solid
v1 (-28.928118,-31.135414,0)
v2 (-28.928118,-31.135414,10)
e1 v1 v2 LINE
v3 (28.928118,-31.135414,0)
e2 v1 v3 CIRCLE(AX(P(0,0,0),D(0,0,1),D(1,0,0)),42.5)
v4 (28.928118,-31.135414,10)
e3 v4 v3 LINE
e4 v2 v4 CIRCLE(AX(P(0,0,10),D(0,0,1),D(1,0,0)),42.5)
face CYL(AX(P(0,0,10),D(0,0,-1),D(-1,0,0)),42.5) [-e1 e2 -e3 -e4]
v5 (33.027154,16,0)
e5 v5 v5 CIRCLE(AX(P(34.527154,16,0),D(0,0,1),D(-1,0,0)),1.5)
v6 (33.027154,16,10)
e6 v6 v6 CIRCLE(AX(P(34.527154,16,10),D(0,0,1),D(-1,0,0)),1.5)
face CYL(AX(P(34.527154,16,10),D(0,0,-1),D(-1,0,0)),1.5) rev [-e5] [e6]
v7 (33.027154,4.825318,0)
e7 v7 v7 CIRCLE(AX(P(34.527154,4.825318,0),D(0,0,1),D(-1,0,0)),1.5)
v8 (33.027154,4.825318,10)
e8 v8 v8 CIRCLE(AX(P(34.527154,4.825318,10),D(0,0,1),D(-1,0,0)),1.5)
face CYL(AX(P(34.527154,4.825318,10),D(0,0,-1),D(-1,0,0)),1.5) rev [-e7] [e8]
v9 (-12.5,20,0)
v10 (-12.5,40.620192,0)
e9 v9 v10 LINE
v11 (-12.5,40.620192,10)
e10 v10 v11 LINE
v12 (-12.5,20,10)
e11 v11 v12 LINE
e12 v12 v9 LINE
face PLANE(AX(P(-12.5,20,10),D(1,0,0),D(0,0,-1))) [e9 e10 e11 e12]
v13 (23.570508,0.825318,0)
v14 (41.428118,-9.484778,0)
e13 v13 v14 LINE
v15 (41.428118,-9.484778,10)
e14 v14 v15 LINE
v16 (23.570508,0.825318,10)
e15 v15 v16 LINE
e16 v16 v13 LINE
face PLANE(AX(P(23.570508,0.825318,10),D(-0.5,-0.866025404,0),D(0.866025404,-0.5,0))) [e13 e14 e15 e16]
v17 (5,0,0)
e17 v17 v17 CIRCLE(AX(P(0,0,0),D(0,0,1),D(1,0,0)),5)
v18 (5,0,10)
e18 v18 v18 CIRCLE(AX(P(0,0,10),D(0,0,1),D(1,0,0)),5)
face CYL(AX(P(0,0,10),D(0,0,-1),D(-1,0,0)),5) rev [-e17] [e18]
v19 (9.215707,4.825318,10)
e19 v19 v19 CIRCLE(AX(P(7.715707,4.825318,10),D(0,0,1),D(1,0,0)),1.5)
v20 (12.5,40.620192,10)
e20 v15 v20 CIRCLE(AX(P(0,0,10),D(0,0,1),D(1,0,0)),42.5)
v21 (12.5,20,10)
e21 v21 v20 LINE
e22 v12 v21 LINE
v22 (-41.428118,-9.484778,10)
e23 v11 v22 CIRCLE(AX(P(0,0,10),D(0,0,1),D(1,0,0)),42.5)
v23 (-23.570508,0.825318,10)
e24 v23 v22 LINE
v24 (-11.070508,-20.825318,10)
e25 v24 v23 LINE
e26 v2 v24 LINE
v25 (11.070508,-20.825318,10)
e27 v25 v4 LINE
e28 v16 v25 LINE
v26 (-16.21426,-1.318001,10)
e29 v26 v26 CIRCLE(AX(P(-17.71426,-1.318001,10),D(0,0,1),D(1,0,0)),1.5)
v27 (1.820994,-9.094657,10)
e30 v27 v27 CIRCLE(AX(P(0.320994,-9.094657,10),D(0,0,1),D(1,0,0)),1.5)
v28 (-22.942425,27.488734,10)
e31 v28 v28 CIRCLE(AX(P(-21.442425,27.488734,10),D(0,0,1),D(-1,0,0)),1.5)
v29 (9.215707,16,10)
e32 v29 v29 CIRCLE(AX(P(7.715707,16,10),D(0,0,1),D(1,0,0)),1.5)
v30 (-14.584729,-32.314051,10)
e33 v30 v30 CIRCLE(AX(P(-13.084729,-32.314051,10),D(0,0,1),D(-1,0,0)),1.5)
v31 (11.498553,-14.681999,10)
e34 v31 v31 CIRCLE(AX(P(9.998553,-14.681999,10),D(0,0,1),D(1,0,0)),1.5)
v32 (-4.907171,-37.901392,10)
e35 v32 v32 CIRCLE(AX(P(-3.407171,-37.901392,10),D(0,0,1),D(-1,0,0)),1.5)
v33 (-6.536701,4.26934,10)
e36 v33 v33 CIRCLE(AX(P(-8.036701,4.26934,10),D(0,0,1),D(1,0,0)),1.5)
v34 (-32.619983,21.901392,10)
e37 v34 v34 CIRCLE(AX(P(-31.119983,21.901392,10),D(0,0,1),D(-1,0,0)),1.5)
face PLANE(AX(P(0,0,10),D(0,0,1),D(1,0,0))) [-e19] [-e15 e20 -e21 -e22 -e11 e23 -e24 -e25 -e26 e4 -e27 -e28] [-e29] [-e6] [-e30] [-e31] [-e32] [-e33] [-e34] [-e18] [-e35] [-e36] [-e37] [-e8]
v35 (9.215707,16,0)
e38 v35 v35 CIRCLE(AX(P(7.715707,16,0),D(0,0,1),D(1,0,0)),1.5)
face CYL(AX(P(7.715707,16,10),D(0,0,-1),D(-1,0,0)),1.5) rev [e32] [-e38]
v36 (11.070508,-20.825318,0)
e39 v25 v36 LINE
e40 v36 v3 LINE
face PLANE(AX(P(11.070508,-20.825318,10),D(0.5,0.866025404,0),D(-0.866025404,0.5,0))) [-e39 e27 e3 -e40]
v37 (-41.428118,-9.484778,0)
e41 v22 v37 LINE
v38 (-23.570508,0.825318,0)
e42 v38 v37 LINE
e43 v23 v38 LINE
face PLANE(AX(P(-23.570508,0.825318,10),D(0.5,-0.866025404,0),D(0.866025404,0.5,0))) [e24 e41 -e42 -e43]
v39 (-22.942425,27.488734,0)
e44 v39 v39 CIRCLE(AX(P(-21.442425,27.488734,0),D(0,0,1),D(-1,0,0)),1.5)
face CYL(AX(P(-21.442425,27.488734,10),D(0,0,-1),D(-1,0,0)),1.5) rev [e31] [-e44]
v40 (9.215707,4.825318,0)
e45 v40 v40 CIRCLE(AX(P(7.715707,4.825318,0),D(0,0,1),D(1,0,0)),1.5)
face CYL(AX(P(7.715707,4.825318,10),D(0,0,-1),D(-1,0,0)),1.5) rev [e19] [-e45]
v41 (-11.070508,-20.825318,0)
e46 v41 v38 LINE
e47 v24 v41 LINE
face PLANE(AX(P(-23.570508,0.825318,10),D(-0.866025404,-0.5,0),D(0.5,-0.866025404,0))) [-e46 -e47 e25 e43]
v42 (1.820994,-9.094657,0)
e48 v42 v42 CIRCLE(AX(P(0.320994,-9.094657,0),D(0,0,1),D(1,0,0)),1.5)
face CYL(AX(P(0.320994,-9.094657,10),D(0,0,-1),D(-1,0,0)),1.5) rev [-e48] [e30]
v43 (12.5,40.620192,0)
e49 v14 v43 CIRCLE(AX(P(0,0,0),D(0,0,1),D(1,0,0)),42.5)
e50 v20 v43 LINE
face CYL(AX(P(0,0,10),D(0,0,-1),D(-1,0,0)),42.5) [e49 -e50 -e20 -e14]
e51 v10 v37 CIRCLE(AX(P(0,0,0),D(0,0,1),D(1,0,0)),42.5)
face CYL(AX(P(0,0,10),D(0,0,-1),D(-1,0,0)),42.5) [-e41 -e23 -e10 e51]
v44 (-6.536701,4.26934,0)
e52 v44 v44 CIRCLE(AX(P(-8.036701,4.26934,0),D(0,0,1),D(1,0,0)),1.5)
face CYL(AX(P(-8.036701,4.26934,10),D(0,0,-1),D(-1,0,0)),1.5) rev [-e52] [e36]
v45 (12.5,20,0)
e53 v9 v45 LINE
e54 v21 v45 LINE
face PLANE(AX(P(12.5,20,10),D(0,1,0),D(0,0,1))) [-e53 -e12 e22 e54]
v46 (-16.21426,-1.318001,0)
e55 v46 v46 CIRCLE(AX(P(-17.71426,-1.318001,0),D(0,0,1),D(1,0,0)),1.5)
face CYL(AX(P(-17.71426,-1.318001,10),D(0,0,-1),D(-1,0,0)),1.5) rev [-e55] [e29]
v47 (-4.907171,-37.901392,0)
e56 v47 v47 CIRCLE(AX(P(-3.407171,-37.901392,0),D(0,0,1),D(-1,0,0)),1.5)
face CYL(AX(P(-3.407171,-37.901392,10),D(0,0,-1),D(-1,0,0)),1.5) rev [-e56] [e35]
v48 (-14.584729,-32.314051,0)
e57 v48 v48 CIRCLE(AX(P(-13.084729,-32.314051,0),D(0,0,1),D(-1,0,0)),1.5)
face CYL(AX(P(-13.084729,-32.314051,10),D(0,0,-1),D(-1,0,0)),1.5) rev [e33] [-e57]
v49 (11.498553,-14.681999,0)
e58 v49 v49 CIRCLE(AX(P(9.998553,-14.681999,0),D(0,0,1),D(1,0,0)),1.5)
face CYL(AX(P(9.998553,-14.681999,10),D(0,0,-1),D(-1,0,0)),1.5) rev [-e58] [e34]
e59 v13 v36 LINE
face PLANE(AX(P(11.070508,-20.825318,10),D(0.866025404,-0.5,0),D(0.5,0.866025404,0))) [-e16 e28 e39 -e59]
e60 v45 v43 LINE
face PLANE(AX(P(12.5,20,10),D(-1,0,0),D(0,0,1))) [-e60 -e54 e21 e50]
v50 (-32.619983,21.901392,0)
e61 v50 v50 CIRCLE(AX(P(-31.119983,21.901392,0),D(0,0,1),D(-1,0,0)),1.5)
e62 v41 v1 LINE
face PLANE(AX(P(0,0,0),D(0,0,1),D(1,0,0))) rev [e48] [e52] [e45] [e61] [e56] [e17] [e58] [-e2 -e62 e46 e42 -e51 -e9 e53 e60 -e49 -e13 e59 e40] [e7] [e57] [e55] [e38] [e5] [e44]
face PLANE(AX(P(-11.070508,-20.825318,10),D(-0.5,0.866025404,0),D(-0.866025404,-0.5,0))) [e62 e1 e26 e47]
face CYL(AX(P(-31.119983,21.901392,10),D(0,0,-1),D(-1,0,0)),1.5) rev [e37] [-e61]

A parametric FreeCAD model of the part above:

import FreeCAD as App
import Part
import Sketcher
Q = App.Units.Quantity


def add_polygon(sketch, points):
    """Adds a closed chain of lines whose ends are joined by coincident constraints."""
    first, n = sketch.GeometryCount, len(points)
    for a, b in zip(points, points[1:] + points[:1]):
        sketch.addGeometry(Part.LineSegment(App.Vector(*a, 0), App.Vector(*b, 0)), False)
    for i in range(n):
        sketch.addConstraint(Sketcher.Constraint("Coincident", first + i, 2, first + (i + 1) % n, 1))

doc = App.newDocument("Part")
params = doc.addObject("Spreadsheet::Sheet", "Params")
for row, (alias, value) in enumerate([
    ("sketch1_diameter", "85 mm"),
    ("pad1_length", "10 mm"),
    ("sketch2_diameter", "10 mm"),
    ("sketch2_width", "25 mm"),
    ("sketch2_height", "40 mm"),
    ("sketch2_length", "25 mm"),
    ("sketch2_length2", "40 mm"),
    ("pocket1_length", "10 mm"),
    ("sketch3_diameter", "3 mm"),
    ("pocket2_length", "10 mm"),
], start=1):
    params.set(f"A{row}", alias)
    params.set(f"B{row}", "=" + value)
    params.setAlias(f"B{row}", alias)

body = doc.addObject("PartDesign::Body", "Body")

sketch1 = doc.addObject("Sketcher::SketchObject", "Sketch")
body.addObject(sketch1)
sketch1.AttachmentSupport = (doc.XY_Plane, [""])
sketch1.MapMode = "FlatFace"
sketch1.addGeometry(Part.Circle(App.Vector(0, 0, 0), App.Vector(0, 0, 1), 42), False)
sketch1.addConstraint(Sketcher.Constraint("Coincident", 0, 3, -1, 1))
sketch1.addConstraint(Sketcher.Constraint("Diameter", 0, Q("85 mm")))
sketch1.setExpression("Constraints[1]", "Params.sketch1_diameter")
pad1 = doc.addObject("PartDesign::Pad", "Pad")
body.addObject(pad1)
pad1.Profile = sketch1
pad1.setExpression("Length", "Params.pad1_length")

sketch2 = doc.addObject("Sketcher::SketchObject", "Sketch001")
body.addObject(sketch2)
sketch2.AttachmentSupport = (doc.XY_Plane, [""])
sketch2.MapMode = "FlatFace"
sketch2.addGeometry(Part.Circle(App.Vector(0, 0, 0), App.Vector(0, 0, 1), 5), False)
add_polygon(sketch2, [(-12, 60), (-12, 20), (12, 20), (12, 60)])
add_polygon(sketch2, [(24, 1), (11, -21), (46, -41), (58, -19)])
add_polygon(sketch2, [(-11, -21), (-24, 1), (-58, -19), (-46, -41)])
sketch2.addConstraint(Sketcher.Constraint("Vertical", 1))
sketch2.addConstraint(Sketcher.Constraint("Horizontal", 2))
sketch2.addConstraint(Sketcher.Constraint("Vertical", 3))
sketch2.addConstraint(Sketcher.Constraint("Horizontal", 4))
sketch2.addConstraint(Sketcher.Constraint("Coincident", 0, 3, -1, 1))
sketch2.addConstraint(Sketcher.Constraint("Symmetric", 8, 2, 9, 2, -2))
sketch2.addConstraint(Sketcher.Constraint("Symmetric", 7, 2, 10, 2, -2))
sketch2.addConstraint(Sketcher.Constraint("Symmetric", 6, 2, 11, 2, -2))
sketch2.addConstraint(Sketcher.Constraint("Symmetric", 5, 2, 12, 2, -2))
sketch2.addConstraint(Sketcher.Constraint("Perpendicular", 5, 6))
sketch2.addConstraint(Sketcher.Constraint("Perpendicular", 6, 7))
sketch2.addConstraint(Sketcher.Constraint("Perpendicular", 7, 8))
sketch2.addConstraint(Sketcher.Constraint("Diameter", 0, Q("10 mm")))
sketch2.addConstraint(Sketcher.Constraint("DistanceX", 2, 1, 2, 2, Q("25 mm")))
sketch2.addConstraint(Sketcher.Constraint("DistanceY", 1, 2, 1, 1, Q("40 mm")))
sketch2.addConstraint(Sketcher.Constraint("Angle", 5, Q("-120 deg")))
sketch2.addConstraint(Sketcher.Constraint("Distance", 5, Q("25 mm")))
sketch2.addConstraint(Sketcher.Constraint("Distance", 6, Q("40 mm")))
sketch2.addConstraint(Sketcher.Constraint("DistanceY", -1, 1, 1, 2, Q("20 mm")))
sketch2.addConstraint(Sketcher.Constraint("DistanceX", 1, 2, -1, 1, Q("12.5 mm")))
sketch2.addConstraint(Sketcher.Constraint("DistanceX", -1, 1, 5, 2, Q("11.070508 mm")))
sketch2.addConstraint(Sketcher.Constraint("DistanceY", 5, 2, -1, 1, Q("20.825318 mm")))
sketch2.setExpression("Constraints[24]", "Params.sketch2_diameter")
sketch2.setExpression("Constraints[25]", "Params.sketch2_width")
sketch2.setExpression("Constraints[26]", "Params.sketch2_height")
sketch2.setExpression("Constraints[28]", "Params.sketch2_length")
sketch2.setExpression("Constraints[29]", "Params.sketch2_length2")
pocket1 = doc.addObject("PartDesign::Pocket", "Pocket")
body.addObject(pocket1)
pocket1.Profile = sketch2
pocket1.setExpression("Length", "Params.pocket1_length")
pocket1.Reversed = True

sketch3 = doc.addObject("Sketcher::SketchObject", "Sketch002")
body.addObject(sketch3)
sketch3.AttachmentSupport = (doc.XY_Plane, [""])
sketch3.MapMode = "FlatFace"
sketch3.addGeometry(Part.Circle(App.Vector(7.7, 16, 0), App.Vector(0, 0, 1), 1.5), False)
sketch3.addGeometry(Part.Circle(App.Vector(7.7, 4.8, 0), App.Vector(0, 0, 1), 1.5), False)
sketch3.addGeometry(Part.Circle(App.Vector(34.5, 4.8, 0), App.Vector(0, 0, 1), 1.5), False)
sketch3.addGeometry(Part.Circle(App.Vector(34.5, 16, 0), App.Vector(0, 0, 1), 1.5), False)
sketch3.addGeometry(Part.Circle(App.Vector(10, -14.7, 0), App.Vector(0, 0, 1), 1.5), False)
sketch3.addGeometry(Part.Circle(App.Vector(0.3, -9.1, 0), App.Vector(0, 0, 1), 1.5), False)
sketch3.addGeometry(Part.Circle(App.Vector(-13.1, -32.3, 0), App.Vector(0, 0, 1), 1.5), False)
sketch3.addGeometry(Part.Circle(App.Vector(-3.4, -37.9, 0), App.Vector(0, 0, 1), 1.5), False)
sketch3.addGeometry(Part.Circle(App.Vector(-17.7, -1.3, 0), App.Vector(0, 0, 1), 1.5), False)
sketch3.addGeometry(Part.Circle(App.Vector(-8, 4.3, 0), App.Vector(0, 0, 1), 1.5), False)
sketch3.addGeometry(Part.Circle(App.Vector(-21.4, 27.5, 0), App.Vector(0, 0, 1), 1.5), False)
sketch3.addGeometry(Part.Circle(App.Vector(-31.1, 21.9, 0), App.Vector(0, 0, 1), 1.5), False)
sketch3.addConstraint(Sketcher.Constraint("Equal", 0, 1))
sketch3.addConstraint(Sketcher.Constraint("Equal", 1, 2))
sketch3.addConstraint(Sketcher.Constraint("Equal", 2, 3))
sketch3.addConstraint(Sketcher.Constraint("Equal", 3, 4))
sketch3.addConstraint(Sketcher.Constraint("Equal", 4, 5))
sketch3.addConstraint(Sketcher.Constraint("Equal", 5, 6))
sketch3.addConstraint(Sketcher.Constraint("Equal", 6, 7))
sketch3.addConstraint(Sketcher.Constraint("Equal", 7, 8))
sketch3.addConstraint(Sketcher.Constraint("Equal", 8, 9))
sketch3.addConstraint(Sketcher.Constraint("Equal", 9, 10))
sketch3.addConstraint(Sketcher.Constraint("Equal", 10, 11))
sketch3.addConstraint(Sketcher.Constraint("Horizontal", 1, 3, 2, 3))
sketch3.addConstraint(Sketcher.Constraint("Horizontal", 0, 3, 3, 3))
sketch3.addConstraint(Sketcher.Constraint("Vertical", 0, 3, 1, 3))
sketch3.addConstraint(Sketcher.Constraint("Vertical", 2, 3, 3, 3))
sketch3.addConstraint(Sketcher.Constraint("Diameter", 0, Q("3 mm")))
sketch3.addConstraint(Sketcher.Constraint("DistanceY", -1, 1, 0, 3, Q("16 mm")))
sketch3.addConstraint(Sketcher.Constraint("DistanceY", 4, 3, -1, 1, Q("14.681999 mm")))
sketch3.addConstraint(Sketcher.Constraint("DistanceY", 8, 3, -1, 1, Q("1.318001 mm")))
sketch3.addConstraint(Sketcher.Constraint("DistanceX", 9, 3, -1, 1, Q("8.036701 mm")))
sketch3.addConstraint(Sketcher.Constraint("DistanceX", 4, 3, 2, 3, Q("24.528601 mm")))
sketch3.addConstraint(Sketcher.Constraint("DistanceX", 6, 3, -1, 1, Q("13.084729 mm")))
sketch3.addConstraint(Sketcher.Constraint("DistanceY", 6, 3, -1, 1, Q("32.314051 mm")))
sketch3.addConstraint(Sketcher.Constraint("DistanceX", 7, 3, -1, 1, Q("3.407171 mm")))
sketch3.addConstraint(Sketcher.Constraint("DistanceX", 8, 3, -1, 1, Q("17.71426 mm")))
sketch3.addConstraint(Sketcher.Constraint("DistanceY", -1, 1, 9, 3, Q("4.26934 mm")))
sketch3.addConstraint(Sketcher.Constraint("DistanceX", 5, 3, 4, 3, Q("9.677559 mm")))
sketch3.addConstraint(Sketcher.Constraint("DistanceY", 4, 3, 5, 3, Q("5.587341 mm")))
sketch3.addConstraint(Sketcher.Constraint("DistanceY", 6, 3, 1, 3, Q("37.139369 mm")))
sketch3.addConstraint(Sketcher.Constraint("DistanceY", 7, 3, 6, 3, Q("5.587341 mm")))
sketch3.addConstraint(Sketcher.Constraint("DistanceX", 9, 3, 1, 3, Q("15.752409 mm")))
sketch3.addConstraint(Sketcher.Constraint("DistanceX", 10, 3, 0, 3, Q("29.158132 mm")))
sketch3.addConstraint(Sketcher.Constraint("DistanceX", 10, 3, 5, 3, Q("21.763418 mm")))
sketch3.addConstraint(Sketcher.Constraint("DistanceY", 5, 3, 10, 3, Q("36.583391 mm")))
sketch3.addConstraint(Sketcher.Constraint("DistanceX", 11, 3, 10, 3, Q("9.677559 mm")))
sketch3.addConstraint(Sketcher.Constraint("DistanceY", 11, 3, 10, 3, Q("5.587341 mm")))
sketch3.setExpression("Constraints[15]", "Params.sketch3_diameter")
pocket2 = doc.addObject("PartDesign::Pocket", "Pocket001")
body.addObject(pocket2)
pocket2.Profile = sketch3
pocket2.setExpression("Length", "Params.pocket2_length")
pocket2.Reversed = True

doc.recompute()
